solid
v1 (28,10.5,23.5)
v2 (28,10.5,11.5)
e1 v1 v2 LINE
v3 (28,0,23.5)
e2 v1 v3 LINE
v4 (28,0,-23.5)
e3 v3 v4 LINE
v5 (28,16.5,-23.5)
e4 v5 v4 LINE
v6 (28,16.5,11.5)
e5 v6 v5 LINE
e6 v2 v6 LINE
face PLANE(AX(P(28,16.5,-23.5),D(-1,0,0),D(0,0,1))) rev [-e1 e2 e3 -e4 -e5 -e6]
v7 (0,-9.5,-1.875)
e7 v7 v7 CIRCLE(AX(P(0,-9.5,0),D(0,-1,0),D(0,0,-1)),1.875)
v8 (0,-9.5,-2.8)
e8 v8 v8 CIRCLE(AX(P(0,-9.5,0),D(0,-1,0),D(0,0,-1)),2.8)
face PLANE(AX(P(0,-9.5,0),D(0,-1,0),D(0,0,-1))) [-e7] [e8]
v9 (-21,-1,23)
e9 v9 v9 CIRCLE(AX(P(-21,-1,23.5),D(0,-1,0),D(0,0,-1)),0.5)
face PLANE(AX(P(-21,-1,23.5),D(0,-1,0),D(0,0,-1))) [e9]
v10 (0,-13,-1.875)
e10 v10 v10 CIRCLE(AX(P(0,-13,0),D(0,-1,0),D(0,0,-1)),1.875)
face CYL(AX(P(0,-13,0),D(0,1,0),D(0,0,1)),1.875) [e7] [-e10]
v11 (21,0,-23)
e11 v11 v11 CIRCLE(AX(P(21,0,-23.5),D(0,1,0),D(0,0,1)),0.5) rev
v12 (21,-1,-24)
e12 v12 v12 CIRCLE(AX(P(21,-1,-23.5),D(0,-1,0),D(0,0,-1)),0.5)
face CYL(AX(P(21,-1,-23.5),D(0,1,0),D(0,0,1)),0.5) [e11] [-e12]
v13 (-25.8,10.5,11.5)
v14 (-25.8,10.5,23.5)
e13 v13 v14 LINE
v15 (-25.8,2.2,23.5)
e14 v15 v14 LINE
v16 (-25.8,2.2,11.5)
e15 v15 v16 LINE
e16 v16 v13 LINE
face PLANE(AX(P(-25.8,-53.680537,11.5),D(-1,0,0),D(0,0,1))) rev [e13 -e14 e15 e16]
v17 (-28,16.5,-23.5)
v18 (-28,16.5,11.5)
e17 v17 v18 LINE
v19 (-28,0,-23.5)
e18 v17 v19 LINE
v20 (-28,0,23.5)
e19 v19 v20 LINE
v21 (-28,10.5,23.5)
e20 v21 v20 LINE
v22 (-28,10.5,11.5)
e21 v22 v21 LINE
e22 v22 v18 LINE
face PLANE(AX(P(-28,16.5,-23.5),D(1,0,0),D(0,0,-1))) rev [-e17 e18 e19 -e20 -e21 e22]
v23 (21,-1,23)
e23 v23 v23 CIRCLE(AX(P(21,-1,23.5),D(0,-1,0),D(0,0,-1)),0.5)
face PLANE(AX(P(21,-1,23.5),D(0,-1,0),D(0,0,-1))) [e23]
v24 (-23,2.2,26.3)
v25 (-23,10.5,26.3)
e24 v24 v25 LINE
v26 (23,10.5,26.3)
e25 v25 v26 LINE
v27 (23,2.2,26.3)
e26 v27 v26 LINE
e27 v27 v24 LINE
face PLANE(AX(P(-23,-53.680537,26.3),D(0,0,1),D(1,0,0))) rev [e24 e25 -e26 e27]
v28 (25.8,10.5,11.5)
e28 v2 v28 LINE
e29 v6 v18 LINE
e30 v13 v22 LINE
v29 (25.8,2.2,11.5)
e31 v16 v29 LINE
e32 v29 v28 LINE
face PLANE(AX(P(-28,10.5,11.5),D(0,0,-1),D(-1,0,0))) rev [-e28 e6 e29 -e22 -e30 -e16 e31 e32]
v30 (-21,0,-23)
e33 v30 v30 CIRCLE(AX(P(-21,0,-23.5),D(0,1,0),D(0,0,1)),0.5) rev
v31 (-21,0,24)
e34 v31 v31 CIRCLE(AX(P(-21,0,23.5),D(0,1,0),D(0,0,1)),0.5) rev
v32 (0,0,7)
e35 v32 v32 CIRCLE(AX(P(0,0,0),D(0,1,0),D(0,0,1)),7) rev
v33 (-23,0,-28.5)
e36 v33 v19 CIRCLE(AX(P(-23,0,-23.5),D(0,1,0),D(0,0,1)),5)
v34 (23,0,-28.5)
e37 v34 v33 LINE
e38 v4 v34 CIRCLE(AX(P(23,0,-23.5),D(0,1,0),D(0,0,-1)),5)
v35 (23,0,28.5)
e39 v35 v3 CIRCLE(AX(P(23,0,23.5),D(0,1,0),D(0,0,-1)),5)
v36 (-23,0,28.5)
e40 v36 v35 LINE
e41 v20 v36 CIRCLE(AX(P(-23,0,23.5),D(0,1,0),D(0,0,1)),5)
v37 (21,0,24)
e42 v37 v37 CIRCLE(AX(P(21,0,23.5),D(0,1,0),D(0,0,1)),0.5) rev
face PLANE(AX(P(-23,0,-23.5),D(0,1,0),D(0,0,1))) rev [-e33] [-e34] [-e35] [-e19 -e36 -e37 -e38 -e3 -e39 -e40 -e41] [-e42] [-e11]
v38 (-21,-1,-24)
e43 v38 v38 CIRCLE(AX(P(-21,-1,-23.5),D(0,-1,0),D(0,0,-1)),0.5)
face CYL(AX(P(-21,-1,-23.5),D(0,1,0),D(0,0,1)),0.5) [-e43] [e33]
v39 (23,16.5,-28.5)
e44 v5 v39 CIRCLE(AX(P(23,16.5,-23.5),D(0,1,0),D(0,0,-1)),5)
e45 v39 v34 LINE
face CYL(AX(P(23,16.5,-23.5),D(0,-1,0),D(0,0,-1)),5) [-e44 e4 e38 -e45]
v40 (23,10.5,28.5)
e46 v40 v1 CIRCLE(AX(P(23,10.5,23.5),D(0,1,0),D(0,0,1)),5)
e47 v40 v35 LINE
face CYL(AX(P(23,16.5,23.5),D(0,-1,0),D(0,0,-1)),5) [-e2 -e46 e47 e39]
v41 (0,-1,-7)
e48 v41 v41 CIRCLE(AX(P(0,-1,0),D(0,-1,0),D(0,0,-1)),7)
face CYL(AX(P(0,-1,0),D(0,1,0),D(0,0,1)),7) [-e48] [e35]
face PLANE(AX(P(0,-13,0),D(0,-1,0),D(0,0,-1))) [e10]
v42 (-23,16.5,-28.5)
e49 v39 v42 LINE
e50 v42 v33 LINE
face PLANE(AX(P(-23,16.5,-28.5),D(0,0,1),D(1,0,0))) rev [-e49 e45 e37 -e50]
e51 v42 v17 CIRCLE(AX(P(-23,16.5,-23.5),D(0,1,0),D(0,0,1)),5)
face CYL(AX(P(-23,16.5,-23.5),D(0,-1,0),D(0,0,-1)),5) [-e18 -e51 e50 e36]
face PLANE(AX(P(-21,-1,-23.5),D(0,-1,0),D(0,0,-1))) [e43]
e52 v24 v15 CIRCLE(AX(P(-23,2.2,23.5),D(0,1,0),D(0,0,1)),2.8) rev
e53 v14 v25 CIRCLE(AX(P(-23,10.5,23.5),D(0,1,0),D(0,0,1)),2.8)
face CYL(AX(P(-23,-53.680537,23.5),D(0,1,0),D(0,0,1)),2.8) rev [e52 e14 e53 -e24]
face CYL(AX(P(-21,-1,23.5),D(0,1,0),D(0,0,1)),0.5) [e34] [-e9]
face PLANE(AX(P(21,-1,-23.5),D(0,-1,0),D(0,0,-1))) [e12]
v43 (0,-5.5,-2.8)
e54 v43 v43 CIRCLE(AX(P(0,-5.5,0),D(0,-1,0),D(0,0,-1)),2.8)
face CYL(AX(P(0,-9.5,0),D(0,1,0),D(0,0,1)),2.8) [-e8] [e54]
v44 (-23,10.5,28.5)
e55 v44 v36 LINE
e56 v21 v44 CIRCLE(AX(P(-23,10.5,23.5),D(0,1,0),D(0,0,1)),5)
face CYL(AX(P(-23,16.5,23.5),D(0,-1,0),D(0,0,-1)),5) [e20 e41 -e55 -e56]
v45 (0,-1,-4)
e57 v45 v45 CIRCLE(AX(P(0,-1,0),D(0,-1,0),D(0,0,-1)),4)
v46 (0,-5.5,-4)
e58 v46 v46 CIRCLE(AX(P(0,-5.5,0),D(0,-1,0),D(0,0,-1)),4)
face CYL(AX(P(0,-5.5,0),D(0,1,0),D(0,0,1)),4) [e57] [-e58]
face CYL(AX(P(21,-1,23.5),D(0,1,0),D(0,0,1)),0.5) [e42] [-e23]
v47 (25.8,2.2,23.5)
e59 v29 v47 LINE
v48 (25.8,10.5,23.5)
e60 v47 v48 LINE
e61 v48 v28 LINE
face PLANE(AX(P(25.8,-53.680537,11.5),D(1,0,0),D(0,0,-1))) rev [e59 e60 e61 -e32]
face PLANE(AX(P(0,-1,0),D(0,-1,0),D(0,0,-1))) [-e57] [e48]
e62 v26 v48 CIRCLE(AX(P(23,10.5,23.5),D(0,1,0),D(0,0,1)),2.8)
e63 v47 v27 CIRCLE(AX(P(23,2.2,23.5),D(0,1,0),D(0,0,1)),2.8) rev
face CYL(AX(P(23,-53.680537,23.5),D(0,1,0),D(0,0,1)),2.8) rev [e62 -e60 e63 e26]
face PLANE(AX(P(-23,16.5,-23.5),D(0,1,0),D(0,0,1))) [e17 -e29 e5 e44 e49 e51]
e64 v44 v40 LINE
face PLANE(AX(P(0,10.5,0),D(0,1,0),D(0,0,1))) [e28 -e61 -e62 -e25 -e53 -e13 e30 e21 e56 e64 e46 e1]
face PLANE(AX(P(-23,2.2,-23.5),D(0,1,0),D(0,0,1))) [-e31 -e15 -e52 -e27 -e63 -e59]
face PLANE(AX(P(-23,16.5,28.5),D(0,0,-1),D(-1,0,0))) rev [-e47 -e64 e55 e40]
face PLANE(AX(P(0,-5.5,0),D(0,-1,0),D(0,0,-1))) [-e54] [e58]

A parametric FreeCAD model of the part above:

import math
import FreeCAD as App
import Part
import Sketcher
from FreeCAD import Vector
Q = App.Units.Quantity

doc = App.newDocument("Part")
body = doc.addObject("PartDesign::Body", "Body")

# Sketch on XZ plane
sketch1 = body.newObject("Sketcher::SketchObject", "Sketch")
sketch1.AttachmentSupport = (doc.getObject("XZ_Plane"), [""])
sketch1.MapMode = "FlatFace"
sketch1.addGeometry([
    Part.LineSegment(Vector(23, -28.5, 0), Vector(-23, -28.5, 0)),  # 0
    Part.ArcOfCircle(Part.Circle(Vector(-23, -23.5, 0), Vector(0, 0, 1), 5), math.radians(180), math.radians(270)),  # 1
    Part.LineSegment(Vector(-28, -23.5, 0), Vector(-28, 23.5, 0)),  # 2
    Part.ArcOfCircle(Part.Circle(Vector(-23, 23.5, 0), Vector(0, 0, 1), 5), math.radians(90), math.radians(180)),  # 3
    Part.LineSegment(Vector(-23, 28.5, 0), Vector(23, 28.5, 0)),  # 4
    Part.ArcOfCircle(Part.Circle(Vector(23, 23.5, 0), Vector(0, 0, 1), 5), math.radians(0), math.radians(90)),  # 5
    Part.LineSegment(Vector(28, 23.5, 0), Vector(28, -23.5, 0)),  # 6
    Part.ArcOfCircle(Part.Circle(Vector(23, -23.5, 0), Vector(0, 0, 1), 5), math.radians(-90), math.radians(0)),  # 7
], False)
sketch1.addConstraint([
    Sketcher.Constraint("Tangent", 0, 2, 1, 2),
    Sketcher.Constraint("Tangent", 1, 1, 2, 1),
    Sketcher.Constraint("Tangent", 2, 2, 3, 2),
    Sketcher.Constraint("Tangent", 3, 1, 4, 1),
    Sketcher.Constraint("Tangent", 4, 2, 5, 2),
    Sketcher.Constraint("Tangent", 5, 1, 6, 1),
    Sketcher.Constraint("Tangent", 6, 2, 7, 2),
    Sketcher.Constraint("Tangent", 7, 1, 0, 1),
    Sketcher.Constraint("Horizontal", 0),
    Sketcher.Constraint("Vertical", 2),
    Sketcher.Constraint("Horizontal", 4),
    Sketcher.Constraint("Vertical", 6),
    Sketcher.Constraint("Equal", 1, 3),
    Sketcher.Constraint("Equal", 3, 5),
    Sketcher.Constraint("Equal", 5, 7),
    Sketcher.Constraint("Symmetric", 1, 3, 5, 3, -1, 1),
    Sketcher.Constraint("Radius", 1, Q("5 mm")),
    Sketcher.Constraint("DistanceX", 0, 2, 0, 1, Q("46 mm")),
    Sketcher.Constraint("DistanceY", 2, 1, 2, 2, Q("47 mm")),
])
pad1 = body.newObject("PartDesign::Pad", "Pad")
pad1.Profile = sketch1
pad1.Length = 16.5
pad1.Reversed = True

# Sketch on XZ plane
sketch2 = body.newObject("Sketcher::SketchObject", "Sketch001")
sketch2.AttachmentSupport = (doc.getObject("XZ_Plane"), [""])
sketch2.MapMode = "FlatFace"
sketch2.AttachmentOffset = App.Placement(Vector(0, 0, -16.5), App.Rotation())
sketch2.addGeometry([
    Part.LineSegment(Vector(-28, 11.5, 0), Vector(-28, 28.5, 0)),
    Part.LineSegment(Vector(-28, 28.5, 0), Vector(28, 28.5, 0)),
    Part.LineSegment(Vector(28, 28.5, 0), Vector(28, 11.5, 0)),
    Part.LineSegment(Vector(28, 11.5, 0), Vector(-28, 11.5, 0)),
], False)
sketch2.addConstraint([
    Sketcher.Constraint("Coincident", 0, 2, 1, 1),
    Sketcher.Constraint("Coincident", 1, 2, 2, 1),
    Sketcher.Constraint("Coincident", 2, 2, 3, 1),
    Sketcher.Constraint("Coincident", 3, 2, 0, 1),
    Sketcher.Constraint("Vertical", 0),
    Sketcher.Constraint("Horizontal", 1),
    Sketcher.Constraint("Vertical", 2),
    Sketcher.Constraint("Horizontal", 3),
    Sketcher.Constraint("DistanceX", 1, 1, 1, 2, Q("56 mm")),
    Sketcher.Constraint("DistanceY", 0, 1, 0, 2, Q("17 mm")),
    Sketcher.Constraint("DistanceX", 0, 2, -1, 1, Q("28 mm")),
    Sketcher.Constraint("DistanceY", -1, 1, 0, 2, Q("28.5 mm")),
])
pocket1 = body.newObject("PartDesign::Pocket", "Pocket")
pocket1.Profile = sketch2
pocket1.Length = 6
pocket1.Reversed = True

# Sketch on XZ plane
sketch3 = body.newObject("Sketcher::SketchObject", "Sketch002")
sketch3.AttachmentSupport = (doc.getObject("XZ_Plane"), [""])
sketch3.MapMode = "FlatFace"
sketch3.AttachmentOffset = App.Placement(Vector(0, 0, -10.5), App.Rotation())
sketch3.addGeometry([
    Part.LineSegment(Vector(25.8, 11.5, 0), Vector(-25.8, 11.5, 0)),  # 0
    Part.LineSegment(Vector(-25.8, 11.5, 0), Vector(-25.8, 23.5, 0)),  # 1
    Part.ArcOfCircle(Part.Circle(Vector(-23, 23.5, 0), Vector(0, 0, 1), 2.8), math.radians(90), math.radians(180)),  # 2
    Part.LineSegment(Vector(-23, 26.3, 0), Vector(23, 26.3, 0)),  # 3
    Part.ArcOfCircle(Part.Circle(Vector(23, 23.5, 0), Vector(0, 0, 1), 2.8), math.radians(0), math.radians(90)),  # 4
    Part.LineSegment(Vector(25.8, 23.5, 0), Vector(25.8, 11.5, 0)),  # 5
], False)
sketch3.addConstraint([
    Sketcher.Constraint("Coincident", 0, 2, 1, 1),
    Sketcher.Constraint("Tangent", 1, 2, 2, 2),
    Sketcher.Constraint("Tangent", 2, 1, 3, 1),
    Sketcher.Constraint("Tangent", 3, 2, 4, 2),
    Sketcher.Constraint("Tangent", 4, 1, 5, 1),
    Sketcher.Constraint("Coincident", 5, 2, 0, 1),
    Sketcher.Constraint("Horizontal", 0),
    Sketcher.Constraint("Vertical", 1),
    Sketcher.Constraint("Horizontal", 3),
    Sketcher.Constraint("Vertical", 5),
    Sketcher.Constraint("Equal", 2, 4),
    Sketcher.Constraint("Radius", 2, Q("2.8 mm")),
    Sketcher.Constraint("DistanceX", 3, 1, 3, 2, Q("46 mm")),
    Sketcher.Constraint("DistanceY", 1, 1, 1, 2, Q("12 mm")),
    Sketcher.Constraint("DistanceX", 2, 3, -1, 1, Q("23 mm")),
    Sketcher.Constraint("DistanceY", -1, 1, 2, 3, Q("23.5 mm")),
])
pocket2 = body.newObject("PartDesign::Pocket", "Pocket001")
pocket2.Profile = sketch3
pocket2.Length = 8.3
pocket2.Reversed = True

# Sketch on XZ plane
sketch4 = body.newObject("Sketcher::SketchObject", "Sketch003")
sketch4.AttachmentSupport = (doc.getObject("XZ_Plane"), [""])
sketch4.MapMode = "FlatFace"
sketch4.addGeometry([
    Part.Circle(Vector(0, 0, 0), Vector(0, 0, 1), 7),  # 0
    Part.Circle(Vector(-21, 23.5, 0), Vector(0, 0, 1), 0.5),  # 1
    Part.Circle(Vector(21, 23.5, 0), Vector(0, 0, 1), 0.5),  # 2
    Part.Circle(Vector(-21, -23.5, 0), Vector(0, 0, 1), 0.5),  # 3
    Part.Circle(Vector(21, -23.5, 0), Vector(0, 0, 1), 0.5),  # 4
], False)
sketch4.addConstraint([
    Sketcher.Constraint("Coincident", 0, 3, -1, 1),
    Sketcher.Constraint("Equal", 1, 2),
    Sketcher.Constraint("Equal", 2, 3),
    Sketcher.Constraint("Equal", 3, 4),
    Sketcher.Constraint("Symmetric", 2, 3, 3, 3, -1, 1),
    Sketcher.Constraint("Symmetric", 1, 3, 4, 3, -1, 1),
    Sketcher.Constraint("Symmetric", 1, 3, 2, 3, -2),
    Sketcher.Constraint("Diameter", 0, Q("14 mm")),
    Sketcher.Constraint("Diameter", 1, Q("1 mm")),
    Sketcher.Constraint("DistanceX", 1, 3, -1, 1, Q("21 mm")),
    Sketcher.Constraint("DistanceY", 3, 3, 1, 3, Q("47 mm")),
])
pad2 = body.newObject("PartDesign::Pad", "Pad001")
pad2.Profile = sketch4
pad2.Length = 1

# Sketch on XZ plane
sketch5 = body.newObject("Sketcher::SketchObject", "Sketch004")
sketch5.AttachmentSupport = (doc.getObject("XZ_Plane"), [""])
sketch5.MapMode = "FlatFace"
sketch5.AttachmentOffset = App.Placement(Vector(0, 0, 1), App.Rotation())
sketch5.addGeometry(Part.Circle(Vector(0, 0, 0), Vector(0, 0, 1), 4), False)
sketch5.addConstraint([
    Sketcher.Constraint("Coincident", 0, 3, -1, 1),
    Sketcher.Constraint("Diameter", 0, Q("8 mm")),
])
pad3 = body.newObject("PartDesign::Pad", "Pad002")
pad3.Profile = sketch5
pad3.Length = 4.5

# Sketch on XZ plane
sketch6 = body.newObject("Sketcher::SketchObject", "Sketch005")
sketch6.AttachmentSupport = (doc.getObject("XZ_Plane"), [""])
sketch6.MapMode = "FlatFace"
sketch6.AttachmentOffset = App.Placement(Vector(0, 0, 5.5), App.Rotation())
sketch6.addGeometry(Part.Circle(Vector(0, 0, 0), Vector(0, 0, 1), 2.8), False)
sketch6.addConstraint([
    Sketcher.Constraint("Coincident", 0, 3, -1, 1),
    Sketcher.Constraint("Diameter", 0, Q("5.6 mm")),
])
pad4 = body.newObject("PartDesign::Pad", "Pad003")
pad4.Profile = sketch6
pad4.Length = 4

# Sketch on XZ plane
sketch7 = body.newObject("Sketcher::SketchObject", "Sketch006")
sketch7.AttachmentSupport = (doc.getObject("XZ_Plane"), [""])
sketch7.MapMode = "FlatFace"
sketch7.AttachmentOffset = App.Placement(Vector(0, 0, 9.5), App.Rotation())
sketch7.addGeometry(Part.Circle(Vector(0, 0, 0), Vector(0, 0, 1), 1.875), False)
sketch7.addConstraint([
    Sketcher.Constraint("Coincident", 0, 3, -1, 1),
    Sketcher.Constraint("Diameter", 0, Q("3.75 mm")),
])
pad5 = body.newObject("PartDesign::Pad", "Pad004")
pad5.Profile = sketch7
pad5.Length = 3.5

doc.recompute()
